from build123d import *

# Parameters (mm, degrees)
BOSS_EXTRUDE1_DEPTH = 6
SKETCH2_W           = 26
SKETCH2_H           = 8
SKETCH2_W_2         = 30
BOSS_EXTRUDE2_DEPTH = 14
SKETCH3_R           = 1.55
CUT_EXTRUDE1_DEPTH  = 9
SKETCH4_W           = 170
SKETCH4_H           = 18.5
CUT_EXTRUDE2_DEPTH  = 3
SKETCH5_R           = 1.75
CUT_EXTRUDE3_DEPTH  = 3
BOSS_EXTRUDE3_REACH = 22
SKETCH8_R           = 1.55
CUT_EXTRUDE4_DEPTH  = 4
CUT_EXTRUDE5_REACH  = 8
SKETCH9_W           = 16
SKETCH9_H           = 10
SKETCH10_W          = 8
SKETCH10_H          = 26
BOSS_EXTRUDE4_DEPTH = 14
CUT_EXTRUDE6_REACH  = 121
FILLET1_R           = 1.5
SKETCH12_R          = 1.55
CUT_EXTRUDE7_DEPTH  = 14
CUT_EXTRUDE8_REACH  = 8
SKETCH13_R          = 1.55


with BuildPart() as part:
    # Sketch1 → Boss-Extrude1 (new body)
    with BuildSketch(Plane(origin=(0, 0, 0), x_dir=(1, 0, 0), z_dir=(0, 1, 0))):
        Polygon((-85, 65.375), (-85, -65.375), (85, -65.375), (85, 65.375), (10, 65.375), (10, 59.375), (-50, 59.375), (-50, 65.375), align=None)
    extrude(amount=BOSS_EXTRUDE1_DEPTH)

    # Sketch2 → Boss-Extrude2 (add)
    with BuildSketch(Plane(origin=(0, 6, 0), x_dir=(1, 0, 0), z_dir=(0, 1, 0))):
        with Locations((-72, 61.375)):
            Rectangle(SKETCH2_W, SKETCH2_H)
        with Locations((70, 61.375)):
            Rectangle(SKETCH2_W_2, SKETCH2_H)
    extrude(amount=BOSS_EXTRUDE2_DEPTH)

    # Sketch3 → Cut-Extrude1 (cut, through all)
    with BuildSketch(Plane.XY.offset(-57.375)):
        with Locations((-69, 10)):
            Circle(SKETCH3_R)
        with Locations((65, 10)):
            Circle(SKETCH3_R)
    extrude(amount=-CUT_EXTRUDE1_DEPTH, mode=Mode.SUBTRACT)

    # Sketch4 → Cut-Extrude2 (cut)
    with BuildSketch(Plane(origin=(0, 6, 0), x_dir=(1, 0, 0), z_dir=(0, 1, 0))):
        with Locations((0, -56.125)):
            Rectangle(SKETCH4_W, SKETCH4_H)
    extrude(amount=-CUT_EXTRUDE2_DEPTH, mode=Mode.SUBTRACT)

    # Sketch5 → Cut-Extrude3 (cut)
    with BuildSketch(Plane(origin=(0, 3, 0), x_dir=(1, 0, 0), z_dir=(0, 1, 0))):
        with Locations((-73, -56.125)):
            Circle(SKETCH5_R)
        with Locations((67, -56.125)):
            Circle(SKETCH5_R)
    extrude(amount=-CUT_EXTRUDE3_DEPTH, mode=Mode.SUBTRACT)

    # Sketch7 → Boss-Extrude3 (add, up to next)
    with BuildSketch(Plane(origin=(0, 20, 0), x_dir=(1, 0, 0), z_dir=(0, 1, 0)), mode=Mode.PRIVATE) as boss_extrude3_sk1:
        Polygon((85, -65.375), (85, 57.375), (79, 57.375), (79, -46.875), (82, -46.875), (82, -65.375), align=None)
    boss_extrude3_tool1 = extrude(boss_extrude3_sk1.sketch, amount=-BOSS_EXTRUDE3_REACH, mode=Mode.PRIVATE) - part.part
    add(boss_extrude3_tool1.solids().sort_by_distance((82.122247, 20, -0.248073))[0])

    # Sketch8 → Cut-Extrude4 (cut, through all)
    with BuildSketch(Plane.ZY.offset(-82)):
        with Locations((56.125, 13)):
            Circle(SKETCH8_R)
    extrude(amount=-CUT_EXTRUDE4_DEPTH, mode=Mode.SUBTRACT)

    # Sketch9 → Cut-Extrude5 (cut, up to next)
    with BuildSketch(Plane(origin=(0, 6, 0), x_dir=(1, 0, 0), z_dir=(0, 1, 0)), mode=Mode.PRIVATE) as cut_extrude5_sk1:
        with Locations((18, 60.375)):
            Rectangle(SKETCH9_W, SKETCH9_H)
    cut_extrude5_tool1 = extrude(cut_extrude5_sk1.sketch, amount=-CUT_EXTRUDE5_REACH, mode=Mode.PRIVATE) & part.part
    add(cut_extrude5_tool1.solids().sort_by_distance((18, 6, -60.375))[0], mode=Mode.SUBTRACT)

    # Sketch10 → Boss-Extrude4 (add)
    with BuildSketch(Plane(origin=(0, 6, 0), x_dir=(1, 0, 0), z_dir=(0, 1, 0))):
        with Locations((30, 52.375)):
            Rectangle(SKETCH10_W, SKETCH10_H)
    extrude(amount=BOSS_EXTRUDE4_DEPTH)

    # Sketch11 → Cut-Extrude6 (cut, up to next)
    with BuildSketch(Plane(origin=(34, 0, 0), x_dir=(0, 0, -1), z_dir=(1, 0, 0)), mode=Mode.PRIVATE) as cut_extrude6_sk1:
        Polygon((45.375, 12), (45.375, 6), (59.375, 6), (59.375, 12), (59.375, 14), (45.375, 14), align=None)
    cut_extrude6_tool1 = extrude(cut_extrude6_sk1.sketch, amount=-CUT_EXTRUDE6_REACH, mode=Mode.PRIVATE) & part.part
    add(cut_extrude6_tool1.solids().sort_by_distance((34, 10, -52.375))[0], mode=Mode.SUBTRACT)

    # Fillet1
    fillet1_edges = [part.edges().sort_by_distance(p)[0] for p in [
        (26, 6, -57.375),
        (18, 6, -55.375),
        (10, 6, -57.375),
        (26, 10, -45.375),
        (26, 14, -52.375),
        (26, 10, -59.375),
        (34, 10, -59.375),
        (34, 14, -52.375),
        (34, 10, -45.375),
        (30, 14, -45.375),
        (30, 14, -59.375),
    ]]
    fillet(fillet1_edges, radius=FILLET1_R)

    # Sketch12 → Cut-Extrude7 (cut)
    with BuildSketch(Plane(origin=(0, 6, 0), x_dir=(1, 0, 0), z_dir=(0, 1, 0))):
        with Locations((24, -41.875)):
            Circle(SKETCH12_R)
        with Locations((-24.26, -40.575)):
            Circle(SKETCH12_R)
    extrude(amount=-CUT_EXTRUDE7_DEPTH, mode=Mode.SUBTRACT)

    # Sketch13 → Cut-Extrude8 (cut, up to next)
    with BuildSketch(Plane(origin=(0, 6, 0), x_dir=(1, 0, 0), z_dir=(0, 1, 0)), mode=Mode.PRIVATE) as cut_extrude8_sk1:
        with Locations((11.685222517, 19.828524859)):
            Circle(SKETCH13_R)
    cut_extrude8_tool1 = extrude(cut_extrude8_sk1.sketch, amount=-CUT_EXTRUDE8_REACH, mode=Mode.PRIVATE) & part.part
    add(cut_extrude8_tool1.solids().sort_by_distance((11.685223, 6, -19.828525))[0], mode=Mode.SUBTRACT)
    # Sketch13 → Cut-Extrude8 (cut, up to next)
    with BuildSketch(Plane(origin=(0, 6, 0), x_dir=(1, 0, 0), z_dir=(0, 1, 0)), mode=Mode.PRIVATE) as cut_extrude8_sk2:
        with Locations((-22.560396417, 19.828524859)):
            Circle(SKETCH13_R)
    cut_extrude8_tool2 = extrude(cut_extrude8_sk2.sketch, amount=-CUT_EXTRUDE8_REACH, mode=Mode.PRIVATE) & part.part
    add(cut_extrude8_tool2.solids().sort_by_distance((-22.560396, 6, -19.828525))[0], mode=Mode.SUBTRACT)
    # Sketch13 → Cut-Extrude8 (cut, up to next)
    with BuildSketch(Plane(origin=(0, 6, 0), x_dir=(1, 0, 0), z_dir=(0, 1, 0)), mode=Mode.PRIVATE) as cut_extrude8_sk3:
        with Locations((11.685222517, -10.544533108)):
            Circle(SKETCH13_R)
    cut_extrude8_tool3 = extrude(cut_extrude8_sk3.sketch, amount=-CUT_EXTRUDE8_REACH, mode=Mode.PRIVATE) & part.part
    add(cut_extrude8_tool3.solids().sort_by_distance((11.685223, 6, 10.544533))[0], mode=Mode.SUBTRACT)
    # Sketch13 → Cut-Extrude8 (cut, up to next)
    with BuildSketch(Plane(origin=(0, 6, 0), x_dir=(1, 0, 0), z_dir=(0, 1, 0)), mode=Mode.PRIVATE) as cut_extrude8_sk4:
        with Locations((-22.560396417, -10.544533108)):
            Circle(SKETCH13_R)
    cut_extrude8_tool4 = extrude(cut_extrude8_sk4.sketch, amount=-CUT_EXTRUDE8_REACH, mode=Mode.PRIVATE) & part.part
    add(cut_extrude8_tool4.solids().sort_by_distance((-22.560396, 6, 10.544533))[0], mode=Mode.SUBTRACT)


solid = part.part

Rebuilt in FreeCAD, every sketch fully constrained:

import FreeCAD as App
import Part
import Sketcher
from FreeCAD import Vector


def edges_at(feature, points):
    """Names of the edges that pass closest to the given points."""
    edges = feature.Shape.Edges
    near = lambda p: min(range(len(edges)), key=lambda i: edges[i].distToShape(Part.Vertex(*p))[0])
    return sorted({f"Edge{near(p) + 1}" for p in points})


def add_polygon(sketch, points):
    """Adds a closed chain of lines whose ends are joined by coincident constraints."""
    first, n = sketch.GeometryCount, len(points)
    for a, b in zip(points, points[1:] + points[:1]):
        sketch.addGeometry(Part.LineSegment(App.Vector(*a, 0), App.Vector(*b, 0)), False)
    for i in range(n):
        sketch.addConstraint(Sketcher.Constraint("Coincident", first + i, 2, first + (i + 1) % n, 1))

doc = App.newDocument("Part")
body = doc.addObject("PartDesign::Body", "Body")

sketch1 = body.newObject("Sketcher::SketchObject", "Sketch")
sketch1.AttachmentSupport = (doc.getObject("XZ_Plane"), [""])
sketch1.MapMode = "FlatFace"
add_polygon(sketch1, [(-85, -65.375), (-85, 65.375), (85, 65.375), (85, -65.375), (10, -65.375), (10, -59.375), (-50, -59.375), (-50, -65.375)])
sketch1.addConstraint(Sketcher.Constraint("Vertical", 0))
sketch1.addConstraint(Sketcher.Constraint("Horizontal", 1))
sketch1.addConstraint(Sketcher.Constraint("Vertical", 2))
sketch1.addConstraint(Sketcher.Constraint("Horizontal", 3))
sketch1.addConstraint(Sketcher.Constraint("Vertical", 4))
sketch1.addConstraint(Sketcher.Constraint("Horizontal", 5))
sketch1.addConstraint(Sketcher.Constraint("Vertical", 6))
sketch1.addConstraint(Sketcher.Constraint("Horizontal", 7))
sketch1.addConstraint(Sketcher.Constraint("Symmetric", 0, 2, 2, 2, -1, 1))
sketch1.addConstraint(Sketcher.Constraint("Horizontal", 3, 2, 6, 2))
sketch1.addConstraint(Sketcher.Constraint("DistanceX", 1, 1, 1, 2, 170.0))
sketch1.addConstraint(Sketcher.Constraint("DistanceX", 3, 2, 3, 1, 75.0))
sketch1.addConstraint(Sketcher.Constraint("DistanceX", 5, 2, 5, 1, 60.0))
sketch1.addConstraint(Sketcher.Constraint("DistanceY", 4, 1, 4, 2, 6.0))
sketch1.addConstraint(Sketcher.Constraint("DistanceY", 0, 1, 0, 2, 130.75))
pad1 = body.newObject("PartDesign::Pad", "Pad")
pad1.Profile = sketch1
pad1.Length = 6
pad1.Reversed = True

sketch2 = body.newObject("Sketcher::SketchObject", "Sketch001")
sketch2.AttachmentSupport = (doc.getObject("XZ_Plane"), [""])
sketch2.MapMode = "FlatFace"
sketch2.AttachmentOffset = App.Placement(Vector(0, 0, -6), App.Rotation())
add_polygon(sketch2, [(-85, -65.375), (-85, -57.375), (-59, -57.375), (-59, -65.375)])
add_polygon(sketch2, [(55, -65.375), (55, -57.375), (85, -57.375), (85, -65.375)])
sketch2.addConstraint(Sketcher.Constraint("Vertical", 0))
sketch2.addConstraint(Sketcher.Constraint("Horizontal", 1))
sketch2.addConstraint(Sketcher.Constraint("Vertical", 2))
sketch2.addConstraint(Sketcher.Constraint("Horizontal", 3))
sketch2.addConstraint(Sketcher.Constraint("Vertical", 4))
sketch2.addConstraint(Sketcher.Constraint("Horizontal", 5))
sketch2.addConstraint(Sketcher.Constraint("Vertical", 6))
sketch2.addConstraint(Sketcher.Constraint("Horizontal", 7))
sketch2.addConstraint(Sketcher.Constraint("Symmetric", 0, 2, 5, 2, -2))
sketch2.addConstraint(Sketcher.Constraint("Horizontal", 3, 2, 6, 2))
sketch2.addConstraint(Sketcher.Constraint("DistanceX", 1, 1, 1, 2, 26.0))
sketch2.addConstraint(Sketcher.Constraint("DistanceX", 5, 1, 5, 2, 30.0))
sketch2.addConstraint(Sketcher.Constraint("DistanceY", 0, 1, 0, 2, 8.0))
sketch2.addConstraint(Sketcher.Constraint("DistanceX", 0, 2, -1, 1, 85.0))
sketch2.addConstraint(Sketcher.Constraint("DistanceY", 0, 2, -1, 1, 57.375))
pad2 = body.newObject("PartDesign::Pad", "Pad001")
pad2.Profile = sketch2
pad2.Length = 14
pad2.Reversed = True

sketch3 = body.newObject("Sketcher::SketchObject", "Sketch002")
sketch3.AttachmentSupport = (doc.getObject("XY_Plane"), [""])
sketch3.MapMode = "FlatFace"
sketch3.AttachmentOffset = App.Placement(Vector(0, 0, -57.375), App.Rotation())
sketch3.addGeometry(Part.Circle(Vector(-69, 10, 0), Vector(0, 0, 1), 1.55), False)
sketch3.addGeometry(Part.Circle(Vector(65, 10, 0), Vector(0, 0, 1), 1.55), False)
sketch3.addConstraint(Sketcher.Constraint("Equal", 0, 1))
sketch3.addConstraint(Sketcher.Constraint("Horizontal", 0, 3, 1, 3))
sketch3.addConstraint(Sketcher.Constraint("Diameter", 0, 3.1))
sketch3.addConstraint(Sketcher.Constraint("DistanceX", 0, 3, -1, 1, 69.0))
sketch3.addConstraint(Sketcher.Constraint("DistanceY", -1, 1, 0, 3, 10.0))
sketch3.addConstraint(Sketcher.Constraint("DistanceX", -1, 1, 1, 3, 65.0))
pocket1 = body.newObject("PartDesign::Pocket", "Pocket")
pocket1.Profile = sketch3
pocket1.Type = "ThroughAll"

sketch4 = body.newObject("Sketcher::SketchObject", "Sketch003")
sketch4.AttachmentSupport = (doc.getObject("XZ_Plane"), [""])
sketch4.MapMode = "FlatFace"
sketch4.AttachmentOffset = App.Placement(Vector(0, 0, -6), App.Rotation())
add_polygon(sketch4, [(-85, 46.875), (-85, 65.375), (85, 65.375), (85, 46.875)])
sketch4.addConstraint(Sketcher.Constraint("Vertical", 0))
sketch4.addConstraint(Sketcher.Constraint("Horizontal", 1))
sketch4.addConstraint(Sketcher.Constraint("Vertical", 2))
sketch4.addConstraint(Sketcher.Constraint("Horizontal", 3))
sketch4.addConstraint(Sketcher.Constraint("DistanceX", 1, 1, 1, 2, 170.0))
sketch4.addConstraint(Sketcher.Constraint("DistanceY", 0, 1, 0, 2, 18.5))
sketch4.addConstraint(Sketcher.Constraint("DistanceX", 0, 2, -1, 1, 85.0))
sketch4.addConstraint(Sketcher.Constraint("DistanceY", -1, 1, 0, 2, 65.375))
pocket2 = body.newObject("PartDesign::Pocket", "Pocket001")
pocket2.Profile = sketch4
pocket2.Length = 3
pocket2.Reversed = True

sketch5 = body.newObject("Sketcher::SketchObject", "Sketch004")
sketch5.AttachmentSupport = (doc.getObject("XZ_Plane"), [""])
sketch5.MapMode = "FlatFace"
sketch5.AttachmentOffset = App.Placement(Vector(0, 0, -3), App.Rotation())
sketch5.addGeometry(Part.Circle(Vector(-73, 56.125, 0), Vector(0, 0, 1), 1.75), False)
sketch5.addGeometry(Part.Circle(Vector(67, 56.125, 0), Vector(0, 0, 1), 1.75), False)
sketch5.addConstraint(Sketcher.Constraint("Equal", 0, 1))
sketch5.addConstraint(Sketcher.Constraint("Horizontal", 0, 3, 1, 3))
sketch5.addConstraint(Sketcher.Constraint("Diameter", 0, 3.5))
sketch5.addConstraint(Sketcher.Constraint("DistanceX", 0, 3, -1, 1, 73.0))
sketch5.addConstraint(Sketcher.Constraint("DistanceX", -1, 1, 1, 3, 67.0))
sketch5.addConstraint(Sketcher.Constraint("DistanceY", -1, 1, 0, 3, 56.125))
pocket3 = body.newObject("PartDesign::Pocket", "Pocket002")
pocket3.Profile = sketch5
pocket3.Length = 3
pocket3.Reversed = True

sketch6 = body.newObject("Sketcher::SketchObject", "Sketch005")
sketch6.AttachmentSupport = (doc.getObject("XZ_Plane"), [""])
sketch6.MapMode = "FlatFace"
sketch6.AttachmentOffset = App.Placement(Vector(0, 0, -20), App.Rotation())
add_polygon(sketch6, [(85, 65.375), (85, -57.375), (79, -57.375), (79, 46.875), (82, 46.875), (82, 65.375)])
sketch6.addConstraint(Sketcher.Constraint("Vertical", 0))
sketch6.addConstraint(Sketcher.Constraint("Horizontal", 1))
sketch6.addConstraint(Sketcher.Constraint("Vertical", 2))
sketch6.addConstraint(Sketcher.Constraint("Horizontal", 3))
sketch6.addConstraint(Sketcher.Constraint("Vertical", 4))
sketch6.addConstraint(Sketcher.Constraint("Horizontal", 5))
sketch6.addConstraint(Sketcher.Constraint("Equal", 3, 5))
sketch6.addConstraint(Sketcher.Constraint("DistanceX", 1, 2, 1, 1, 6.0))
sketch6.addConstraint(Sketcher.Constraint("DistanceY", 4, 1, 4, 2, 18.5))
sketch6.addConstraint(Sketcher.Constraint("DistanceX", -1, 1, 0, 2, 85.0))
sketch6.addConstraint(Sketcher.Constraint("DistanceY", 0, 2, 0, 1, 122.75))
sketch6.addConstraint(Sketcher.Constraint("DistanceY", 0, 2, -1, 1, 57.375))
pad3 = body.newObject("PartDesign::Pad", "Pad002")
pad3.Profile = sketch6
pad3.Length = 17

sketch7 = body.newObject("Sketcher::SketchObject", "Sketch006")
sketch7.AttachmentSupport = (doc.getObject("YZ_Plane"), [""])
sketch7.MapMode = "FlatFace"
sketch7.AttachmentOffset = App.Placement(Vector(0, 0, 82), App.Rotation())
sketch7.addGeometry(Part.Circle(Vector(13, 56.125, 0), Vector(0, 0, 1), 1.55), False)
sketch7.addConstraint(Sketcher.Constraint("Diameter", 0, 3.1))
sketch7.addConstraint(Sketcher.Constraint("DistanceX", -1, 1, 0, 3, 13.0))
sketch7.addConstraint(Sketcher.Constraint("DistanceY", -1, 1, 0, 3, 56.125))
pocket4 = body.newObject("PartDesign::Pocket", "Pocket003")
pocket4.Profile = sketch7
pocket4.Type = "ThroughAll"
pocket4.Reversed = True

sketch8 = body.newObject("Sketcher::SketchObject", "Sketch007")
sketch8.AttachmentSupport = (doc.getObject("XZ_Plane"), [""])
sketch8.MapMode = "FlatFace"
sketch8.AttachmentOffset = App.Placement(Vector(0, 0, -6), App.Rotation())
add_polygon(sketch8, [(10, -65.375), (10, -55.375), (26, -55.375), (26, -65.375)])
sketch8.addConstraint(Sketcher.Constraint("Vertical", 0))
sketch8.addConstraint(Sketcher.Constraint("Horizontal", 1))
sketch8.addConstraint(Sketcher.Constraint("Vertical", 2))
sketch8.addConstraint(Sketcher.Constraint("Horizontal", 3))
sketch8.addConstraint(Sketcher.Constraint("DistanceX", 1, 1, 1, 2, 16.0))
sketch8.addConstraint(Sketcher.Constraint("DistanceY", 0, 1, 0, 2, 10.0))
sketch8.addConstraint(Sketcher.Constraint("DistanceX", -1, 1, 0, 2, 10.0))
sketch8.addConstraint(Sketcher.Constraint("DistanceY", 0, 2, -1, 1, 55.375))
pocket5 = body.newObject("PartDesign::Pocket", "Pocket004")
pocket5.Profile = sketch8
pocket5.Type = "UpToFirst"
pocket5.Reversed = True

sketch9 = body.newObject("Sketcher::SketchObject", "Sketch008")
sketch9.AttachmentSupport = (doc.getObject("XZ_Plane"), [""])
sketch9.MapMode = "FlatFace"
sketch9.AttachmentOffset = App.Placement(Vector(0, 0, -6), App.Rotation())
add_polygon(sketch9, [(26, -65.375), (26, -39.375), (34, -39.375), (34, -65.375)])
sketch9.addConstraint(Sketcher.Constraint("Vertical", 0))
sketch9.addConstraint(Sketcher.Constraint("Horizontal", 1))
sketch9.addConstraint(Sketcher.Constraint("Vertical", 2))
sketch9.addConstraint(Sketcher.Constraint("Horizontal", 3))
sketch9.addConstraint(Sketcher.Constraint("DistanceX", 1, 1, 1, 2, 8.0))
sketch9.addConstraint(Sketcher.Constraint("DistanceY", 0, 1, 0, 2, 26.0))
sketch9.addConstraint(Sketcher.Constraint("DistanceX", -1, 1, 0, 2, 26.0))
sketch9.addConstraint(Sketcher.Constraint("DistanceY", 0, 2, -1, 1, 39.375))
pad4 = body.newObject("PartDesign::Pad", "Pad003")
pad4.Profile = sketch9
pad4.Length = 14
pad4.Reversed = True

sketch10 = body.newObject("Sketcher::SketchObject", "Sketch009")
sketch10.AttachmentSupport = (doc.getObject("YZ_Plane"), [""])
sketch10.MapMode = "FlatFace"
sketch10.AttachmentOffset = App.Placement(Vector(0, 0, 34), App.Rotation())
add_polygon(sketch10, [(6, -45.375), (6, -59.375), (14, -59.375), (14, -45.375)])
sketch10.addConstraint(Sketcher.Constraint("Vertical", 0))
sketch10.addConstraint(Sketcher.Constraint("Horizontal", 1))
sketch10.addConstraint(Sketcher.Constraint("Vertical", 2))
sketch10.addConstraint(Sketcher.Constraint("Horizontal", 3))
sketch10.addConstraint(Sketcher.Constraint("DistanceX", 1, 1, 1, 2, 8.0))
sketch10.addConstraint(Sketcher.Constraint("DistanceY", 0, 2, 0, 1, 14.0))
sketch10.addConstraint(Sketcher.Constraint("DistanceX", -1, 1, 0, 2, 6.0))
sketch10.addConstraint(Sketcher.Constraint("DistanceY", 0, 2, -1, 1, 59.375))
pocket6 = body.newObject("PartDesign::Pocket", "Pocket005")
pocket6.Profile = sketch10
pocket6.Type = "UpToFirst"
doc.recompute()

fillet = body.newObject("PartDesign::Fillet", "Fillet")
fillet.Base = (pocket6, edges_at(pocket6, [
    (26, 6, -57.375),
    (18, 6, -55.375),
    (10, 6, -57.375),
    (26, 10, -45.375),
    (26, 14, -52.375),
    (26, 10, -59.375),
    (34, 10, -59.375),
    (34, 14, -52.375),
    (34, 10, -45.375),
    (30, 14, -45.375),
    (30, 14, -59.375),
]))
fillet.Radius = 1.5

sketch11 = body.newObject("Sketcher::SketchObject", "Sketch010")
sketch11.AttachmentSupport = (doc.getObject("XZ_Plane"), [""])
sketch11.MapMode = "FlatFace"
sketch11.AttachmentOffset = App.Placement(Vector(0, 0, -6), App.Rotation())
sketch11.addGeometry(Part.Circle(Vector(24, 41.875, 0), Vector(0, 0, 1), 1.55), False)
sketch11.addGeometry(Part.Circle(Vector(-24.26, 40.575, 0), Vector(0, 0, 1), 1.55), False)
sketch11.addConstraint(Sketcher.Constraint("Equal", 0, 1))
sketch11.addConstraint(Sketcher.Constraint("Diameter", 0, 3.1))
sketch11.addConstraint(Sketcher.Constraint("DistanceX", -1, 1, 0, 3, 24.0))
sketch11.addConstraint(Sketcher.Constraint("DistanceY", 1, 3, 0, 3, 1.3))
sketch11.addConstraint(Sketcher.Constraint("DistanceX", 1, 3, -1, 1, 24.26))
sketch11.addConstraint(Sketcher.Constraint("DistanceY", -1, 1, 0, 3, 41.875))
pocket7 = body.newObject("PartDesign::Pocket", "Pocket006")
pocket7.Profile = sketch11
pocket7.Length = 14
pocket7.Reversed = True

sketch12 = body.newObject("Sketcher::SketchObject", "Sketch011")
sketch12.AttachmentSupport = (doc.getObject("XZ_Plane"), [""])
sketch12.MapMode = "FlatFace"
sketch12.AttachmentOffset = App.Placement(Vector(0, 0, -6), App.Rotation())
sketch12.addGeometry(Part.Circle(Vector(11.685223, -19.828525, 0), Vector(0, 0, 1), 1.55), False)
sketch12.addConstraint(Sketcher.Constraint("Diameter", 0, 3.1))
sketch12.addConstraint(Sketcher.Constraint("DistanceX", -1, 1, 0, 3, 11.685223))
sketch12.addConstraint(Sketcher.Constraint("DistanceY", 0, 3, -1, 1, 19.828525))
pocket8 = body.newObject("PartDesign::Pocket", "Pocket007")
pocket8.Profile = sketch12
pocket8.Type = "UpToFirst"
pocket8.Reversed = True

sketch13 = body.newObject("Sketcher::SketchObject", "Sketch012")
sketch13.AttachmentSupport = (doc.getObject("XZ_Plane"), [""])
sketch13.MapMode = "FlatFace"
sketch13.AttachmentOffset = App.Placement(Vector(0, 0, -6), App.Rotation())
sketch13.addGeometry(Part.Circle(Vector(-22.560396, -19.828525, 0), Vector(0, 0, 1), 1.55), False)
sketch13.addConstraint(Sketcher.Constraint("Diameter", 0, 3.1))
sketch13.addConstraint(Sketcher.Constraint("DistanceX", 0, 3, -1, 1, 22.560396))
sketch13.addConstraint(Sketcher.Constraint("DistanceY", 0, 3, -1, 1, 19.828525))
pocket9 = body.newObject("PartDesign::Pocket", "Pocket008")
pocket9.Profile = sketch13
pocket9.Type = "UpToFirst"
pocket9.Reversed = True

sketch14 = body.newObject("Sketcher::SketchObject", "Sketch013")
sketch14.AttachmentSupport = (doc.getObject("XZ_Plane"), [""])
sketch14.MapMode = "FlatFace"
sketch14.AttachmentOffset = App.Placement(Vector(0, 0, -6), App.Rotation())
sketch14.addGeometry(Part.Circle(Vector(11.685223, 10.544533, 0), Vector(0, 0, 1), 1.55), False)
sketch14.addConstraint(Sketcher.Constraint("Diameter", 0, 3.1))
sketch14.addConstraint(Sketcher.Constraint("DistanceX", -1, 1, 0, 3, 11.685223))
sketch14.addConstraint(Sketcher.Constraint("DistanceY", -1, 1, 0, 3, 10.544533))
pocket10 = body.newObject("PartDesign::Pocket", "Pocket009")
pocket10.Profile = sketch14
pocket10.Type = "UpToFirst"
pocket10.Reversed = True

sketch15 = body.newObject("Sketcher::SketchObject", "Sketch014")
sketch15.AttachmentSupport = (doc.getObject("XZ_Plane"), [""])
sketch15.MapMode = "FlatFace"
sketch15.AttachmentOffset = App.Placement(Vector(0, 0, -6), App.Rotation())
sketch15.addGeometry(Part.Circle(Vector(-22.560396, 10.544533, 0), Vector(0, 0, 1), 1.55), False)
sketch15.addConstraint(Sketcher.Constraint("Diameter", 0, 3.1))
sketch15.addConstraint(Sketcher.Constraint("DistanceX", 0, 3, -1, 1, 22.560396))
sketch15.addConstraint(Sketcher.Constraint("DistanceY", -1, 1, 0, 3, 10.544533))
pocket11 = body.newObject("PartDesign::Pocket", "Pocket010")
pocket11.Profile = sketch15
pocket11.Type = "UpToFirst"
pocket11.Reversed = True

doc.recompute()
